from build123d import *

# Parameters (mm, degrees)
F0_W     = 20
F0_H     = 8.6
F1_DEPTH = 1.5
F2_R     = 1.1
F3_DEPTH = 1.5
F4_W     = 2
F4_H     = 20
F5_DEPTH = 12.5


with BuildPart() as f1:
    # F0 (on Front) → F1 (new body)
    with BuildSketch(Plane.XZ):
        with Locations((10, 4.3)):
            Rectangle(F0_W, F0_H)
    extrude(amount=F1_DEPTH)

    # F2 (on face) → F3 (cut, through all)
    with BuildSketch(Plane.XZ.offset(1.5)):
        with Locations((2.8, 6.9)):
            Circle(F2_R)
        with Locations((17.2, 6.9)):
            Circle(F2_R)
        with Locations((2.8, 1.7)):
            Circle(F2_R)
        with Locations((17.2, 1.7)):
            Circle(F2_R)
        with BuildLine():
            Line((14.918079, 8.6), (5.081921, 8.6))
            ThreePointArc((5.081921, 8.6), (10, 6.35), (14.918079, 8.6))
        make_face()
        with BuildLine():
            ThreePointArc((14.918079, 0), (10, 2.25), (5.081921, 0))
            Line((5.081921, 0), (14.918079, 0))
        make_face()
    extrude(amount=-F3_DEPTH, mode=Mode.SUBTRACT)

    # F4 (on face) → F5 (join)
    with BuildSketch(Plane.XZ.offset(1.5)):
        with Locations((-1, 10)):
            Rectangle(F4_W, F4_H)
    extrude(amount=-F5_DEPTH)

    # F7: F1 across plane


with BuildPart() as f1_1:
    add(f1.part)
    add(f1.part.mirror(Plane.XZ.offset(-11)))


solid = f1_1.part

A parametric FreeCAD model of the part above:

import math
import FreeCAD as App
import Part
import Sketcher
Q = App.Units.Quantity


def add_polygon(sketch, points):
    """Adds a closed chain of lines whose ends are joined by coincident constraints."""
    first, n = sketch.GeometryCount, len(points)
    for a, b in zip(points, points[1:] + points[:1]):
        sketch.addGeometry(Part.LineSegment(App.Vector(*a, 0), App.Vector(*b, 0)), False)
    for i in range(n):
        sketch.addConstraint(Sketcher.Constraint("Coincident", first + i, 2, first + (i + 1) % n, 1))

doc = App.newDocument("Part")
params = doc.addObject("Spreadsheet::Sheet", "Params")
for row, (alias, value) in enumerate([
    ("sketch1_width", "20 mm"),
    ("sketch1_height", "8.6 mm"),
    ("pad1_length", "1.5 mm"),
    ("sketch2_diameter", "2.2 mm"),
    ("sketch2_radius", "6.5 mm"),
    ("sketch3_width", "2 mm"),
    ("sketch3_height", "20 mm"),
    ("pad2_length", "12.5 mm"),
], start=1):
    params.set(f"A{row}", alias)
    params.set(f"B{row}", "=" + value)
    params.setAlias(f"B{row}", alias)

body = doc.addObject("PartDesign::Body", "Body")

sketch1 = doc.addObject("Sketcher::SketchObject", "Sketch")
body.addObject(sketch1)
sketch1.AttachmentSupport = (doc.XZ_Plane, [""])
sketch1.MapMode = "FlatFace"
add_polygon(sketch1, [(0, 9), (0, 0), (20, 0), (20, 9)])
sketch1.addConstraint(Sketcher.Constraint("Vertical", 0))
sketch1.addConstraint(Sketcher.Constraint("Horizontal", 1))
sketch1.addConstraint(Sketcher.Constraint("Vertical", 2))
sketch1.addConstraint(Sketcher.Constraint("Horizontal", 3))
sketch1.addConstraint(Sketcher.Constraint("Coincident", 0, 2, -1, 1))
sketch1.addConstraint(Sketcher.Constraint("DistanceX", 1, 1, 1, 2, Q("20 mm")))
sketch1.addConstraint(Sketcher.Constraint("DistanceY", 0, 2, 0, 1, Q("8.6 mm")))
sketch1.setExpression("Constraints[9]", "Params.sketch1_width")
sketch1.setExpression("Constraints[10]", "Params.sketch1_height")
pad1 = doc.addObject("PartDesign::Pad", "Pad")
body.addObject(pad1)
pad1.Profile = sketch1
pad1.setExpression("Length", "Params.pad1_length")

sketch2 = doc.addObject("Sketcher::SketchObject", "Sketch001")
body.addObject(sketch2)
sketch2.AttachmentSupport = (doc.XZ_Plane, [""])
sketch2.MapMode = "FlatFace"
sketch2.AttachmentOffset = App.Placement(App.Vector(0, 0, 1.5), App.Rotation())
sketch2.addGeometry(Part.Circle(App.Vector(2.8, 6.9, 0), App.Vector(0, 0, 1), 1.1), False)
sketch2.addGeometry(Part.Circle(App.Vector(17.2, 6.9, 0), App.Vector(0, 0, 1), 1.1), False)
sketch2.addGeometry(Part.Circle(App.Vector(2.8, 1.7, 0), App.Vector(0, 0, 1), 1.1), False)
sketch2.addGeometry(Part.Circle(App.Vector(17.2, 1.7, 0), App.Vector(0, 0, 1), 1.1), False)
sketch2.addGeometry(Part.LineSegment(App.Vector(14.9, 8.6, 0), App.Vector(5.1, 8.6, 0)), False)
sketch2.addGeometry(Part.ArcOfCircle(Part.Circle(App.Vector(10, 12.9, 0), App.Vector(0, 0, 1), 6.5), math.radians(-139), math.radians(-41)), False)
sketch2.addGeometry(Part.ArcOfCircle(Part.Circle(App.Vector(10, -4.3, 0), App.Vector(0, 0, 1), 6.5), math.radians(41), math.radians(139)), False)
sketch2.addGeometry(Part.LineSegment(App.Vector(5.1, 0, 0), App.Vector(14.9, 0, 0)), False)
sketch2.addConstraint(Sketcher.Constraint("Coincident", 4, 1, 5, 2))
sketch2.addConstraint(Sketcher.Constraint("Coincident", 5, 1, 4, 2))
sketch2.addConstraint(Sketcher.Constraint("Coincident", 6, 1, 7, 2))
sketch2.addConstraint(Sketcher.Constraint("Coincident", 7, 1, 6, 2))
sketch2.addConstraint(Sketcher.Constraint("Horizontal", 4))
sketch2.addConstraint(Sketcher.Constraint("Horizontal", 7))
sketch2.addConstraint(Sketcher.Constraint("Equal", 0, 1))
sketch2.addConstraint(Sketcher.Constraint("Equal", 1, 2))
sketch2.addConstraint(Sketcher.Constraint("Equal", 2, 3))
sketch2.addConstraint(Sketcher.Constraint("Equal", 5, 6))
sketch2.addConstraint(Sketcher.Constraint("PointOnObject", 6, 1, -1))
sketch2.addConstraint(Sketcher.Constraint("Horizontal", 0, 3, 1, 3))
sketch2.addConstraint(Sketcher.Constraint("Horizontal", 2, 3, 3, 3))
sketch2.addConstraint(Sketcher.Constraint("Vertical", 0, 3, 2, 3))
sketch2.addConstraint(Sketcher.Constraint("Vertical", 1, 3, 3, 3))
sketch2.addConstraint(Sketcher.Constraint("Vertical", 5, 3, 6, 3))
sketch2.addConstraint(Sketcher.Constraint("Vertical", 4, 1, 6, 1))
sketch2.addConstraint(Sketcher.Constraint("Diameter", 0, Q("2.2 mm")))
sketch2.addConstraint(Sketcher.Constraint("Radius", 5, Q("6.5 mm")))
sketch2.addConstraint(Sketcher.Constraint("DistanceX", -1, 1, 5, 3, Q("10 mm")))
sketch2.addConstraint(Sketcher.Constraint("DistanceX", -1, 1, 0, 3, Q("2.8 mm")))
sketch2.addConstraint(Sketcher.Constraint("DistanceY", -1, 1, 0, 3, Q("6.9 mm")))
sketch2.addConstraint(Sketcher.Constraint("DistanceX", -1, 1, 1, 3, Q("17.2 mm")))
sketch2.addConstraint(Sketcher.Constraint("DistanceY", -1, 1, 2, 3, Q("1.7 mm")))
sketch2.addConstraint(Sketcher.Constraint("DistanceY", -1, 1, 4, 1, Q("8.6 mm")))
sketch2.addConstraint(Sketcher.Constraint("DistanceY", 6, 3, 5, 3, Q("17.1 mm")))
sketch2.setExpression("Constraints[17]", "Params.sketch2_diameter")
sketch2.setExpression("Constraints[18]", "Params.sketch2_radius")
pocket1 = doc.addObject("PartDesign::Pocket", "Pocket")
body.addObject(pocket1)
pocket1.Profile = sketch2
pocket1.Type = "ThroughAll"

sketch3 = doc.addObject("Sketcher::SketchObject", "Sketch002")
body.addObject(sketch3)
sketch3.AttachmentSupport = (doc.XZ_Plane, [""])
sketch3.MapMode = "FlatFace"
sketch3.AttachmentOffset = App.Placement(App.Vector(0, 0, 1.5), App.Rotation())
add_polygon(sketch3, [(-2, 20), (-2, 0), (0, 0), (0, 20)])
sketch3.addConstraint(Sketcher.Constraint("Vertical", 0))
sketch3.addConstraint(Sketcher.Constraint("Horizontal", 1))
sketch3.addConstraint(Sketcher.Constraint("Vertical", 2))
sketch3.addConstraint(Sketcher.Constraint("Horizontal", 3))
sketch3.addConstraint(Sketcher.Constraint("Coincident", 1, 2, -1, 1))
sketch3.addConstraint(Sketcher.Constraint("DistanceX", 1, 1, 1, 2, Q("2 mm")))
sketch3.addConstraint(Sketcher.Constraint("DistanceY", 0, 2, 0, 1, Q("20 mm")))
sketch3.setExpression("Constraints[9]", "Params.sketch3_width")
sketch3.setExpression("Constraints[10]", "Params.sketch3_height")
pad2 = doc.addObject("PartDesign::Pad", "Pad001")
body.addObject(pad2)
pad2.Profile = sketch3
pad2.setExpression("Length", "Params.pad2_length")
pad2.Reversed = True
body2 = doc.addObject("PartDesign::Body", "Body001")
doc.recompute()

body2.BaseFeature = body
doc.recompute()

mirroring = doc.addObject("Part::Mirroring", "Mirroring")
mirroring.Source = body
mirroring.Base = App.Vector(0, 11, 0)
mirroring.Normal = App.Vector(0, -1, 0)
body3 = doc.addObject("PartDesign::Body", "Body002")
body3.BaseFeature = mirroring
boolean = doc.addObject("PartDesign::Boolean", "Boolean")
body2.addObject(boolean)
boolean.Type = "Fuse"
boolean.addObjects([body3])
doc.recompute()
mirroring.Visibility = False

doc.recompute()
